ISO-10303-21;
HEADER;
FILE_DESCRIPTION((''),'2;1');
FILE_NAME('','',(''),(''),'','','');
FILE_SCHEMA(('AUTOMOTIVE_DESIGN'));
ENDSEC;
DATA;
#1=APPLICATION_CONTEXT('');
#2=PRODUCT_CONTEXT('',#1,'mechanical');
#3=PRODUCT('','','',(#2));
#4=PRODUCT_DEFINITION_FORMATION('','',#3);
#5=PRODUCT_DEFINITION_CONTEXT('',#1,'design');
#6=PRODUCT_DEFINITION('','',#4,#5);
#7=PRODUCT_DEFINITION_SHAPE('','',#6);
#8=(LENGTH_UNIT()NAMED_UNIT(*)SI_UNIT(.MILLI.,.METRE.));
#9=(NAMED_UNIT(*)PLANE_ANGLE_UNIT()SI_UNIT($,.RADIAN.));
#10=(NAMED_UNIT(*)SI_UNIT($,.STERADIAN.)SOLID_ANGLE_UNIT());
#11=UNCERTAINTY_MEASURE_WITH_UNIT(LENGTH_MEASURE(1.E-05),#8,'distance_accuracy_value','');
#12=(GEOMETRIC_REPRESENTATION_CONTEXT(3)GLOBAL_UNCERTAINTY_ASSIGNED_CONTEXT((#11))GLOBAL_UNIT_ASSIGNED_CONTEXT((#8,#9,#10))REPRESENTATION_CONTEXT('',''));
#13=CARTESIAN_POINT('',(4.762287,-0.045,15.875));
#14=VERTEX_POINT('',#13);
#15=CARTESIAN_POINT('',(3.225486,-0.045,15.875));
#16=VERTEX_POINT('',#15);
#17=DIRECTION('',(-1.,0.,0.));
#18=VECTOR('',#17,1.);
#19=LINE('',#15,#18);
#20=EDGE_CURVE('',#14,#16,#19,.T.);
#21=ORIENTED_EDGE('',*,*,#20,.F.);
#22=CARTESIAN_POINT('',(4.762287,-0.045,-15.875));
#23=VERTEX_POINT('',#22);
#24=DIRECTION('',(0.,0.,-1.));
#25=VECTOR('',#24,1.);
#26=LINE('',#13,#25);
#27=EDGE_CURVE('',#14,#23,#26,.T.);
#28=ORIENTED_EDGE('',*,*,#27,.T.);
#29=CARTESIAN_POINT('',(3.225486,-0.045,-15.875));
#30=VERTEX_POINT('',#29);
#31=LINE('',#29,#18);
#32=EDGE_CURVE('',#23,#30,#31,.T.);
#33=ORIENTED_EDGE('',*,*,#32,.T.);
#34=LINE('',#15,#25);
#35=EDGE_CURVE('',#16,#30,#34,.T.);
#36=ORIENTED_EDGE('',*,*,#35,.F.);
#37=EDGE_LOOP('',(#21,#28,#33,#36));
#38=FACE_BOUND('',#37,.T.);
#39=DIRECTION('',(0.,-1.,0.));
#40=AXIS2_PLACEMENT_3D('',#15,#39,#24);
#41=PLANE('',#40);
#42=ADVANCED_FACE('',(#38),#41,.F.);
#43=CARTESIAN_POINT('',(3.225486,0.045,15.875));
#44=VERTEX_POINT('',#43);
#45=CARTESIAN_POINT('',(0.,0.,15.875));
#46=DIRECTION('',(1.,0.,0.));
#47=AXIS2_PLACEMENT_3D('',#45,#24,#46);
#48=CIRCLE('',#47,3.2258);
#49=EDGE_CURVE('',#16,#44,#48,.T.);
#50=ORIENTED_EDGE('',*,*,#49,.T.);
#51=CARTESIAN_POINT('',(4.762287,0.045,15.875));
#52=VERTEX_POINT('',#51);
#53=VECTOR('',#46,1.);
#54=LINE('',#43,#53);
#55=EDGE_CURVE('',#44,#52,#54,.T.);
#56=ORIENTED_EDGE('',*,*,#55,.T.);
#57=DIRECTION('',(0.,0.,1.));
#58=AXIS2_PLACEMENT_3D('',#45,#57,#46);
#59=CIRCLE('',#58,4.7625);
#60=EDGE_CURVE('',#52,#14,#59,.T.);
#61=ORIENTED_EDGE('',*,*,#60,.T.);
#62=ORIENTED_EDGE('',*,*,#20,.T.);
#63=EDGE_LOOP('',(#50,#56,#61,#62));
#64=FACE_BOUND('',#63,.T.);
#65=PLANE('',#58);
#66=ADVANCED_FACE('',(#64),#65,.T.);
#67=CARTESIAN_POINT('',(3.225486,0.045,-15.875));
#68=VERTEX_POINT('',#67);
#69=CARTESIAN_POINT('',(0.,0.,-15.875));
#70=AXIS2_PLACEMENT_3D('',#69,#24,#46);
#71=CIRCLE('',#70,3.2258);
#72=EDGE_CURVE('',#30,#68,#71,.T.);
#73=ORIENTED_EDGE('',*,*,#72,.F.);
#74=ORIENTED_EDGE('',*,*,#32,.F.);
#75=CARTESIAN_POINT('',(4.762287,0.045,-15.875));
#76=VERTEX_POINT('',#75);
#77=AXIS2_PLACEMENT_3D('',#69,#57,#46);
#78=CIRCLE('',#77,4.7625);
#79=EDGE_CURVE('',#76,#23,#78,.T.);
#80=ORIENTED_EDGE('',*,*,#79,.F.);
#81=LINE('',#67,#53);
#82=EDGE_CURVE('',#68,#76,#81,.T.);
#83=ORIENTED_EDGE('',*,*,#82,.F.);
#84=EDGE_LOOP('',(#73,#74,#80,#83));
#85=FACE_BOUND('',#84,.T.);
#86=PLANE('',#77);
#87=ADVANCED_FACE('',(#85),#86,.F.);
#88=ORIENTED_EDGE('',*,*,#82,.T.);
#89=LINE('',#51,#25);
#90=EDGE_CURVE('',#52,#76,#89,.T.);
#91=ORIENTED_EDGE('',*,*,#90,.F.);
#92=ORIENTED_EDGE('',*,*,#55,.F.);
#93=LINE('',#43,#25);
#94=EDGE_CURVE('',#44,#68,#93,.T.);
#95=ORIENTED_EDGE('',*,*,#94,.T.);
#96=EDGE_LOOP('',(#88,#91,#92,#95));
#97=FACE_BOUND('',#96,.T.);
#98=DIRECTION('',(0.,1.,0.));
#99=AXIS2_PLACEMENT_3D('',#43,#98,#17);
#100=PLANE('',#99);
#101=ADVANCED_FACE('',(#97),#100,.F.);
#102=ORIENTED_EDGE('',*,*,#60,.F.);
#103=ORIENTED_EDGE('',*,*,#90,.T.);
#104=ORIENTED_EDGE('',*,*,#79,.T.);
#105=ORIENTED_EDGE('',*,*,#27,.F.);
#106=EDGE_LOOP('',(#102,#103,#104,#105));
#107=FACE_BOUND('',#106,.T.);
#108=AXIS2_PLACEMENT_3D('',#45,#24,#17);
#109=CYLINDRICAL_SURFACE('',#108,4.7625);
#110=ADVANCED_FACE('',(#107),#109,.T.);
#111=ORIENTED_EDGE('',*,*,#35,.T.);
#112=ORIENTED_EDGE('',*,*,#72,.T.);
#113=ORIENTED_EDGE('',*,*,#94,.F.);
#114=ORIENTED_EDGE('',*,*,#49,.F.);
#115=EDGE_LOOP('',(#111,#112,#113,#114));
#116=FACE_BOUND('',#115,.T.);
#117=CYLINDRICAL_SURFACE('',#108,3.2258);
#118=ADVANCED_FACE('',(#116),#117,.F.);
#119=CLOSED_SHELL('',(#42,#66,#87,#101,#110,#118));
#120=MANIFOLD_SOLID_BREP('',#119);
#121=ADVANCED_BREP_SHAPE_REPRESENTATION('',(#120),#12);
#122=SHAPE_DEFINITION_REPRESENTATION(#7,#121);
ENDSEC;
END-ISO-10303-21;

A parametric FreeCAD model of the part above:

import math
import FreeCAD as App
import Part
import Sketcher
Q = App.Units.Quantity

doc = App.newDocument("Part")
body = doc.addObject("PartDesign::Body", "Body")

# Sketch on XY plane
sketch1 = doc.addObject("Sketcher::SketchObject", "Sketch")
body.addObject(sketch1)
sketch1.AttachmentSupport = (doc.XY_Plane, [""])
sketch1.MapMode = "FlatFace"
sketch1.addGeometry(Part.LineSegment(App.Vector(3.23, 0.04, 0), App.Vector(4.76, 0.04, 0)), False)
sketch1.addGeometry(Part.ArcOfCircle(Part.Circle(App.Vector(0, 0, 0), App.Vector(0, 0, 1), 4.76), math.radians(1), math.radians(359)), False)
sketch1.addGeometry(Part.LineSegment(App.Vector(4.76, -0.04, 0), App.Vector(3.23, -0.04, 0)), False)
sketch1.addGeometry(Part.ArcOfCircle(Part.Circle(App.Vector(0, 0, 0), App.Vector(0, 0, 1), 3.23), math.radians(1), math.radians(359)), False)
sketch1.addConstraint(Sketcher.Constraint("Coincident", 0, 2, 1, 1))
sketch1.addConstraint(Sketcher.Constraint("Coincident", 1, 2, 2, 1))
sketch1.addConstraint(Sketcher.Constraint("Coincident", 2, 2, 3, 2))
sketch1.addConstraint(Sketcher.Constraint("Coincident", 3, 1, 0, 1))
sketch1.addConstraint(Sketcher.Constraint("Horizontal", 0))
sketch1.addConstraint(Sketcher.Constraint("Horizontal", 2))
sketch1.addConstraint(Sketcher.Constraint("Coincident", 1, 3, -1, 1))
sketch1.addConstraint(Sketcher.Constraint("Coincident", 3, 3, -1, 1))
sketch1.addConstraint(Sketcher.Constraint("Vertical", 0, 2, 1, 2))
sketch1.addConstraint(Sketcher.Constraint("Radius", 1, Q("0.1875 in")))
sketch1.addConstraint(Sketcher.Constraint("Radius", 3, Q("0.127 in")))
sketch1.addConstraint(Sketcher.Constraint("DistanceY", -1, 1, 0, 2, 0.045))
pad1 = doc.addObject("PartDesign::Pad", "Pad")
body.addObject(pad1)
pad1.Profile = sketch1
pad1.Type = "TwoLengths"
pad1.Length = Q("0.625 in")
pad1.Length2 = Q("0.625 in")

doc.recompute()
